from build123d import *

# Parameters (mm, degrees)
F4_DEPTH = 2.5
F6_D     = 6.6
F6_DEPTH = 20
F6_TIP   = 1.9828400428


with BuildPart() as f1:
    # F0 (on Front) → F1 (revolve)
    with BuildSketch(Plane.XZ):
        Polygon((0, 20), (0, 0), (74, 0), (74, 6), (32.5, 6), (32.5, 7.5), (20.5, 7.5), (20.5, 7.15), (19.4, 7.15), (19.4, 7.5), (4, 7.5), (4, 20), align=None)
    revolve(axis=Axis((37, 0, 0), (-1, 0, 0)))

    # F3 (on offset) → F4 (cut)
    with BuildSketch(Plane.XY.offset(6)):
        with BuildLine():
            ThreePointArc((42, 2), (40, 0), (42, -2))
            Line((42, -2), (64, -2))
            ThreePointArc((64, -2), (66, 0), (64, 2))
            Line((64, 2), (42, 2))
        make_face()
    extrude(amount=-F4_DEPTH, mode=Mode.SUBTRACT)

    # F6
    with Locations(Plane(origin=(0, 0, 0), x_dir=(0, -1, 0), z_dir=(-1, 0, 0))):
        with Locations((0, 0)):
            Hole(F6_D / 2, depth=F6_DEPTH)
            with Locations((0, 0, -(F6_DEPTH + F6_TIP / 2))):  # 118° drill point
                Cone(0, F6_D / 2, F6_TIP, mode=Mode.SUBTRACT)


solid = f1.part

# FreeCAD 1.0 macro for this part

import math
import FreeCAD as App
import Part
import Sketcher
from FreeCAD import Vector

doc = App.newDocument("Part")
params = doc.addObject("Spreadsheet::Sheet", "Params")
for row, (alias, value) in enumerate([
    ("sketch1_width", "74 mm"),
    ("sketch1_width2", "12 mm"),
    ("sketch1_width3", "4 mm"),
    ("sketch1_height", "20 mm"),
    ("sketch1_height2", "6 mm"),
    ("revolution_angle", "360 deg"),
    ("sketch2_radius", "2 mm"),
    ("sketch2_width", "22 mm"),
    ("pocket1_length", "2.5 mm"),
    ("sketch3_diameter", "6.6 mm"),
    ("hole_diameter", "6.6 mm"),
    ("hole_depth", "20 mm"),
], start=1):
    params.set(f"A{row}", alias)
    params.set(f"B{row}", "=" + value)
    params.setAlias(f"B{row}", alias)

body = doc.addObject("PartDesign::Body", "Body")

# Sketch on XZ plane
sketch1 = doc.addObject("Sketcher::SketchObject", "Sketch")
body.addObject(sketch1)
sketch1.AttachmentSupport = (doc.XZ_Plane, [""])
sketch1.MapMode = "FlatFace"
sketch1.addGeometry([
    Part.LineSegment(Vector(0, 20, 0), Vector(0, 0, 0)),  # 0
    Part.LineSegment(Vector(0, 0, 0), Vector(74, 0, 0)),  # 1
    Part.LineSegment(Vector(74, 0, 0), Vector(74, 6, 0)),  # 2
    Part.LineSegment(Vector(74, 6, 0), Vector(32.5, 6, 0)),  # 3
    Part.LineSegment(Vector(32.5, 6, 0), Vector(32.5, 7.5, 0)),  # 4
    Part.LineSegment(Vector(32.5, 7.5, 0), Vector(20.5, 7.5, 0)),  # 5
    Part.LineSegment(Vector(20.5, 7.5, 0), Vector(20.5, 7.15, 0)),  # 6
    Part.LineSegment(Vector(20.5, 7.15, 0), Vector(19.4, 7.15, 0)),  # 7
    Part.LineSegment(Vector(19.4, 7.15, 0), Vector(19.4, 7.5, 0)),  # 8
    Part.LineSegment(Vector(19.4, 7.5, 0), Vector(4, 7.5, 0)),  # 9
    Part.LineSegment(Vector(4, 7.5, 0), Vector(4, 20, 0)),  # 10
    Part.LineSegment(Vector(4, 20, 0), Vector(0, 20, 0)),  # 11
], False)
sketch1.addConstraint([
    Sketcher.Constraint("Coincident", 0, 2, 1, 1),
    Sketcher.Constraint("Coincident", 1, 2, 2, 1),
    Sketcher.Constraint("Coincident", 2, 2, 3, 1),
    Sketcher.Constraint("Coincident", 3, 2, 4, 1),
    Sketcher.Constraint("Coincident", 4, 2, 5, 1),
    Sketcher.Constraint("Coincident", 5, 2, 6, 1),
    Sketcher.Constraint("Coincident", 6, 2, 7, 1),
    Sketcher.Constraint("Coincident", 7, 2, 8, 1),
    Sketcher.Constraint("Coincident", 8, 2, 9, 1),
    Sketcher.Constraint("Coincident", 9, 2, 10, 1),
    Sketcher.Constraint("Coincident", 10, 2, 11, 1),
    Sketcher.Constraint("Coincident", 11, 2, 0, 1),
    Sketcher.Constraint("Vertical", 0),
    Sketcher.Constraint("Horizontal", 1),
    Sketcher.Constraint("Vertical", 2),
    Sketcher.Constraint("Horizontal", 3),
    Sketcher.Constraint("Vertical", 4),
    Sketcher.Constraint("Horizontal", 5),
    Sketcher.Constraint("Vertical", 6),
    Sketcher.Constraint("Horizontal", 7),
    Sketcher.Constraint("Vertical", 8),
    Sketcher.Constraint("Horizontal", 9),
    Sketcher.Constraint("Vertical", 10),
    Sketcher.Constraint("Horizontal", 11),
    Sketcher.Constraint("Coincident", 0, 2, -1, 1),
    Sketcher.Constraint("Horizontal", 5, 2, 8, 2),
    Sketcher.Constraint("DistanceX", 1, 1, 1, 2, 74.0),
    Sketcher.Constraint("DistanceX", 5, 2, 5, 1, 12.0),
    Sketcher.Constraint("DistanceX", 11, 2, 11, 1, 4.0),
    Sketcher.Constraint("DistanceY", 0, 2, 0, 1, 20.0),
    Sketcher.Constraint("DistanceY", 2, 1, 2, 2, 6.0),
    Sketcher.Constraint("DistanceX", 3, 2, 3, 1, 41.5),
    Sketcher.Constraint("DistanceX", 7, 2, 7, 1, 1.1),
    Sketcher.Constraint("DistanceY", 4, 1, 4, 2, 1.5),
    Sketcher.Constraint("DistanceY", 6, 2, 6, 1, 0.35),
])
sketch1.setExpression("Constraints[26]", "Params.sketch1_width")
sketch1.setExpression("Constraints[27]", "Params.sketch1_width2")
sketch1.setExpression("Constraints[28]", "Params.sketch1_width3")
sketch1.setExpression("Constraints[29]", "Params.sketch1_height")
sketch1.setExpression("Constraints[30]", "Params.sketch1_height2")
revolution = doc.addObject("PartDesign::Revolution", "Revolution")
body.addObject(revolution)
revolution.Profile = sketch1
revolution.ReferenceAxis = (sketch1, ["H_Axis"])
revolution.setExpression("Angle", "Params.revolution_angle")

# Sketch on XY plane
sketch2 = doc.addObject("Sketcher::SketchObject", "Sketch001")
body.addObject(sketch2)
sketch2.AttachmentSupport = (doc.XY_Plane, [""])
sketch2.MapMode = "FlatFace"
sketch2.AttachmentOffset = App.Placement(Vector(0, 0, 6), App.Rotation())
sketch2.addGeometry([
    Part.ArcOfCircle(Part.Circle(Vector(42, 0, 0), Vector(0, 0, 1), 2), math.radians(90), math.radians(270)),
    Part.LineSegment(Vector(42, -2, 0), Vector(64, -2, 0)),
    Part.ArcOfCircle(Part.Circle(Vector(64, 0, 0), Vector(0, 0, 1), 2), math.radians(-90), math.radians(90)),
    Part.LineSegment(Vector(64, 2, 0), Vector(42, 2, 0)),
], False)
sketch2.addConstraint([
    Sketcher.Constraint("Tangent", 0, 2, 1, 1),
    Sketcher.Constraint("Tangent", 1, 2, 2, 1),
    Sketcher.Constraint("Tangent", 2, 2, 3, 1),
    Sketcher.Constraint("Tangent", 3, 2, 0, 1),
    Sketcher.Constraint("Horizontal", 1),
    Sketcher.Constraint("Horizontal", 3),
    Sketcher.Constraint("PointOnObject", 0, 3, -1),
    Sketcher.Constraint("Radius", 0, 2.0),
    Sketcher.Constraint("DistanceX", 1, 1, 1, 2, 22.0),
    Sketcher.Constraint("DistanceX", -1, 1, 0, 3, 42.0),
])
sketch2.setExpression("Constraints[7]", "Params.sketch2_radius")
sketch2.setExpression("Constraints[8]", "Params.sketch2_width")
pocket1 = doc.addObject("PartDesign::Pocket", "Pocket")
body.addObject(pocket1)
pocket1.Profile = sketch2
pocket1.setExpression("Length", "Params.pocket1_length")

# Sketch on YZ plane
sketch3 = doc.addObject("Sketcher::SketchObject", "Sketch002")
body.addObject(sketch3)
sketch3.AttachmentSupport = (doc.YZ_Plane, [""])
sketch3.MapMode = "FlatFace"
sketch3.addGeometry(Part.Circle(Vector(0, 0, 0), Vector(0, 0, 1), 3.3), False)
sketch3.addConstraint([
    Sketcher.Constraint("Coincident", 0, 3, -1, 1),
    Sketcher.Constraint("Diameter", 0, 6.6),
])
sketch3.setExpression("Constraints[1]", "Params.sketch3_diameter")
doc.recompute()
hole = doc.addObject("PartDesign::Hole", "Hole")
body.addObject(hole)
hole.Profile = sketch3
hole.ThreadType = "None"
hole.setExpression("Diameter", "Params.hole_diameter")
hole.DepthType = "Dimension"
hole.setExpression("Depth", "Params.hole_depth")
hole.DrillPoint = "Angled"
hole.DrillPointAngle = 118
hole.Reversed = True

doc.recompute()
